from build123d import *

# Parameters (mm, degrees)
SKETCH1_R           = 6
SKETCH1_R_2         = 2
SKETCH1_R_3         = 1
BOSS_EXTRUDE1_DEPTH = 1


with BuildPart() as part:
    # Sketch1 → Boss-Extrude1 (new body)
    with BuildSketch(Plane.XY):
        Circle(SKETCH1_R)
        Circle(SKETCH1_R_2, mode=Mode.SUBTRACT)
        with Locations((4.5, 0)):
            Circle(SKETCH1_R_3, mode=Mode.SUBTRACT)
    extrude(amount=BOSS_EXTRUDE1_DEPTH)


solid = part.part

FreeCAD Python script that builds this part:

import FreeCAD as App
import Part
import Sketcher
Q = App.Units.Quantity

doc = App.newDocument("Part")
params = doc.addObject("Spreadsheet::Sheet", "Params")
for row, (alias, value) in enumerate([
    ("sketch1_diameter", "12 mm"),
    ("sketch1_diameter2", "4 mm"),
    ("sketch1_diameter3", "2 mm"),
    ("pad1_length", "1 mm"),
], start=1):
    params.set(f"A{row}", alias)
    params.set(f"B{row}", "=" + value)
    params.setAlias(f"B{row}", alias)

body = doc.addObject("PartDesign::Body", "Body")

# Sketch on XY plane
sketch1 = body.newObject("Sketcher::SketchObject", "Sketch")
sketch1.AttachmentSupport = (doc.getObject("XY_Plane"), [""])
sketch1.MapMode = "FlatFace"
sketch1.addGeometry([
    Part.Circle(App.Vector(0, 0, 0), App.Vector(0, 0, 1), 6),
    Part.Circle(App.Vector(0, 0, 0), App.Vector(0, 0, 1), 2),
    Part.Circle(App.Vector(4.5, 0, 0), App.Vector(0, 0, 1), 1),
], False)
sketch1.addConstraint([
    Sketcher.Constraint("Coincident", 0, 3, -1, 1),
    Sketcher.Constraint("Coincident", 1, 3, -1, 1),
    Sketcher.Constraint("PointOnObject", 2, 3, -1),
    Sketcher.Constraint("Diameter", 0, Q("12 mm")),
    Sketcher.Constraint("Diameter", 1, Q("4 mm")),
    Sketcher.Constraint("Diameter", 2, Q("2 mm")),
    Sketcher.Constraint("DistanceX", -1, 1, 2, 3, Q("4.5 mm")),
])
sketch1.setExpression("Constraints[3]", "Params.sketch1_diameter")
sketch1.setExpression("Constraints[4]", "Params.sketch1_diameter2")
sketch1.setExpression("Constraints[5]", "Params.sketch1_diameter3")
pad1 = body.newObject("PartDesign::Pad", "Pad")
pad1.Profile = sketch1
pad1.setExpression("Length", "Params.pad1_length")

doc.recompute()
